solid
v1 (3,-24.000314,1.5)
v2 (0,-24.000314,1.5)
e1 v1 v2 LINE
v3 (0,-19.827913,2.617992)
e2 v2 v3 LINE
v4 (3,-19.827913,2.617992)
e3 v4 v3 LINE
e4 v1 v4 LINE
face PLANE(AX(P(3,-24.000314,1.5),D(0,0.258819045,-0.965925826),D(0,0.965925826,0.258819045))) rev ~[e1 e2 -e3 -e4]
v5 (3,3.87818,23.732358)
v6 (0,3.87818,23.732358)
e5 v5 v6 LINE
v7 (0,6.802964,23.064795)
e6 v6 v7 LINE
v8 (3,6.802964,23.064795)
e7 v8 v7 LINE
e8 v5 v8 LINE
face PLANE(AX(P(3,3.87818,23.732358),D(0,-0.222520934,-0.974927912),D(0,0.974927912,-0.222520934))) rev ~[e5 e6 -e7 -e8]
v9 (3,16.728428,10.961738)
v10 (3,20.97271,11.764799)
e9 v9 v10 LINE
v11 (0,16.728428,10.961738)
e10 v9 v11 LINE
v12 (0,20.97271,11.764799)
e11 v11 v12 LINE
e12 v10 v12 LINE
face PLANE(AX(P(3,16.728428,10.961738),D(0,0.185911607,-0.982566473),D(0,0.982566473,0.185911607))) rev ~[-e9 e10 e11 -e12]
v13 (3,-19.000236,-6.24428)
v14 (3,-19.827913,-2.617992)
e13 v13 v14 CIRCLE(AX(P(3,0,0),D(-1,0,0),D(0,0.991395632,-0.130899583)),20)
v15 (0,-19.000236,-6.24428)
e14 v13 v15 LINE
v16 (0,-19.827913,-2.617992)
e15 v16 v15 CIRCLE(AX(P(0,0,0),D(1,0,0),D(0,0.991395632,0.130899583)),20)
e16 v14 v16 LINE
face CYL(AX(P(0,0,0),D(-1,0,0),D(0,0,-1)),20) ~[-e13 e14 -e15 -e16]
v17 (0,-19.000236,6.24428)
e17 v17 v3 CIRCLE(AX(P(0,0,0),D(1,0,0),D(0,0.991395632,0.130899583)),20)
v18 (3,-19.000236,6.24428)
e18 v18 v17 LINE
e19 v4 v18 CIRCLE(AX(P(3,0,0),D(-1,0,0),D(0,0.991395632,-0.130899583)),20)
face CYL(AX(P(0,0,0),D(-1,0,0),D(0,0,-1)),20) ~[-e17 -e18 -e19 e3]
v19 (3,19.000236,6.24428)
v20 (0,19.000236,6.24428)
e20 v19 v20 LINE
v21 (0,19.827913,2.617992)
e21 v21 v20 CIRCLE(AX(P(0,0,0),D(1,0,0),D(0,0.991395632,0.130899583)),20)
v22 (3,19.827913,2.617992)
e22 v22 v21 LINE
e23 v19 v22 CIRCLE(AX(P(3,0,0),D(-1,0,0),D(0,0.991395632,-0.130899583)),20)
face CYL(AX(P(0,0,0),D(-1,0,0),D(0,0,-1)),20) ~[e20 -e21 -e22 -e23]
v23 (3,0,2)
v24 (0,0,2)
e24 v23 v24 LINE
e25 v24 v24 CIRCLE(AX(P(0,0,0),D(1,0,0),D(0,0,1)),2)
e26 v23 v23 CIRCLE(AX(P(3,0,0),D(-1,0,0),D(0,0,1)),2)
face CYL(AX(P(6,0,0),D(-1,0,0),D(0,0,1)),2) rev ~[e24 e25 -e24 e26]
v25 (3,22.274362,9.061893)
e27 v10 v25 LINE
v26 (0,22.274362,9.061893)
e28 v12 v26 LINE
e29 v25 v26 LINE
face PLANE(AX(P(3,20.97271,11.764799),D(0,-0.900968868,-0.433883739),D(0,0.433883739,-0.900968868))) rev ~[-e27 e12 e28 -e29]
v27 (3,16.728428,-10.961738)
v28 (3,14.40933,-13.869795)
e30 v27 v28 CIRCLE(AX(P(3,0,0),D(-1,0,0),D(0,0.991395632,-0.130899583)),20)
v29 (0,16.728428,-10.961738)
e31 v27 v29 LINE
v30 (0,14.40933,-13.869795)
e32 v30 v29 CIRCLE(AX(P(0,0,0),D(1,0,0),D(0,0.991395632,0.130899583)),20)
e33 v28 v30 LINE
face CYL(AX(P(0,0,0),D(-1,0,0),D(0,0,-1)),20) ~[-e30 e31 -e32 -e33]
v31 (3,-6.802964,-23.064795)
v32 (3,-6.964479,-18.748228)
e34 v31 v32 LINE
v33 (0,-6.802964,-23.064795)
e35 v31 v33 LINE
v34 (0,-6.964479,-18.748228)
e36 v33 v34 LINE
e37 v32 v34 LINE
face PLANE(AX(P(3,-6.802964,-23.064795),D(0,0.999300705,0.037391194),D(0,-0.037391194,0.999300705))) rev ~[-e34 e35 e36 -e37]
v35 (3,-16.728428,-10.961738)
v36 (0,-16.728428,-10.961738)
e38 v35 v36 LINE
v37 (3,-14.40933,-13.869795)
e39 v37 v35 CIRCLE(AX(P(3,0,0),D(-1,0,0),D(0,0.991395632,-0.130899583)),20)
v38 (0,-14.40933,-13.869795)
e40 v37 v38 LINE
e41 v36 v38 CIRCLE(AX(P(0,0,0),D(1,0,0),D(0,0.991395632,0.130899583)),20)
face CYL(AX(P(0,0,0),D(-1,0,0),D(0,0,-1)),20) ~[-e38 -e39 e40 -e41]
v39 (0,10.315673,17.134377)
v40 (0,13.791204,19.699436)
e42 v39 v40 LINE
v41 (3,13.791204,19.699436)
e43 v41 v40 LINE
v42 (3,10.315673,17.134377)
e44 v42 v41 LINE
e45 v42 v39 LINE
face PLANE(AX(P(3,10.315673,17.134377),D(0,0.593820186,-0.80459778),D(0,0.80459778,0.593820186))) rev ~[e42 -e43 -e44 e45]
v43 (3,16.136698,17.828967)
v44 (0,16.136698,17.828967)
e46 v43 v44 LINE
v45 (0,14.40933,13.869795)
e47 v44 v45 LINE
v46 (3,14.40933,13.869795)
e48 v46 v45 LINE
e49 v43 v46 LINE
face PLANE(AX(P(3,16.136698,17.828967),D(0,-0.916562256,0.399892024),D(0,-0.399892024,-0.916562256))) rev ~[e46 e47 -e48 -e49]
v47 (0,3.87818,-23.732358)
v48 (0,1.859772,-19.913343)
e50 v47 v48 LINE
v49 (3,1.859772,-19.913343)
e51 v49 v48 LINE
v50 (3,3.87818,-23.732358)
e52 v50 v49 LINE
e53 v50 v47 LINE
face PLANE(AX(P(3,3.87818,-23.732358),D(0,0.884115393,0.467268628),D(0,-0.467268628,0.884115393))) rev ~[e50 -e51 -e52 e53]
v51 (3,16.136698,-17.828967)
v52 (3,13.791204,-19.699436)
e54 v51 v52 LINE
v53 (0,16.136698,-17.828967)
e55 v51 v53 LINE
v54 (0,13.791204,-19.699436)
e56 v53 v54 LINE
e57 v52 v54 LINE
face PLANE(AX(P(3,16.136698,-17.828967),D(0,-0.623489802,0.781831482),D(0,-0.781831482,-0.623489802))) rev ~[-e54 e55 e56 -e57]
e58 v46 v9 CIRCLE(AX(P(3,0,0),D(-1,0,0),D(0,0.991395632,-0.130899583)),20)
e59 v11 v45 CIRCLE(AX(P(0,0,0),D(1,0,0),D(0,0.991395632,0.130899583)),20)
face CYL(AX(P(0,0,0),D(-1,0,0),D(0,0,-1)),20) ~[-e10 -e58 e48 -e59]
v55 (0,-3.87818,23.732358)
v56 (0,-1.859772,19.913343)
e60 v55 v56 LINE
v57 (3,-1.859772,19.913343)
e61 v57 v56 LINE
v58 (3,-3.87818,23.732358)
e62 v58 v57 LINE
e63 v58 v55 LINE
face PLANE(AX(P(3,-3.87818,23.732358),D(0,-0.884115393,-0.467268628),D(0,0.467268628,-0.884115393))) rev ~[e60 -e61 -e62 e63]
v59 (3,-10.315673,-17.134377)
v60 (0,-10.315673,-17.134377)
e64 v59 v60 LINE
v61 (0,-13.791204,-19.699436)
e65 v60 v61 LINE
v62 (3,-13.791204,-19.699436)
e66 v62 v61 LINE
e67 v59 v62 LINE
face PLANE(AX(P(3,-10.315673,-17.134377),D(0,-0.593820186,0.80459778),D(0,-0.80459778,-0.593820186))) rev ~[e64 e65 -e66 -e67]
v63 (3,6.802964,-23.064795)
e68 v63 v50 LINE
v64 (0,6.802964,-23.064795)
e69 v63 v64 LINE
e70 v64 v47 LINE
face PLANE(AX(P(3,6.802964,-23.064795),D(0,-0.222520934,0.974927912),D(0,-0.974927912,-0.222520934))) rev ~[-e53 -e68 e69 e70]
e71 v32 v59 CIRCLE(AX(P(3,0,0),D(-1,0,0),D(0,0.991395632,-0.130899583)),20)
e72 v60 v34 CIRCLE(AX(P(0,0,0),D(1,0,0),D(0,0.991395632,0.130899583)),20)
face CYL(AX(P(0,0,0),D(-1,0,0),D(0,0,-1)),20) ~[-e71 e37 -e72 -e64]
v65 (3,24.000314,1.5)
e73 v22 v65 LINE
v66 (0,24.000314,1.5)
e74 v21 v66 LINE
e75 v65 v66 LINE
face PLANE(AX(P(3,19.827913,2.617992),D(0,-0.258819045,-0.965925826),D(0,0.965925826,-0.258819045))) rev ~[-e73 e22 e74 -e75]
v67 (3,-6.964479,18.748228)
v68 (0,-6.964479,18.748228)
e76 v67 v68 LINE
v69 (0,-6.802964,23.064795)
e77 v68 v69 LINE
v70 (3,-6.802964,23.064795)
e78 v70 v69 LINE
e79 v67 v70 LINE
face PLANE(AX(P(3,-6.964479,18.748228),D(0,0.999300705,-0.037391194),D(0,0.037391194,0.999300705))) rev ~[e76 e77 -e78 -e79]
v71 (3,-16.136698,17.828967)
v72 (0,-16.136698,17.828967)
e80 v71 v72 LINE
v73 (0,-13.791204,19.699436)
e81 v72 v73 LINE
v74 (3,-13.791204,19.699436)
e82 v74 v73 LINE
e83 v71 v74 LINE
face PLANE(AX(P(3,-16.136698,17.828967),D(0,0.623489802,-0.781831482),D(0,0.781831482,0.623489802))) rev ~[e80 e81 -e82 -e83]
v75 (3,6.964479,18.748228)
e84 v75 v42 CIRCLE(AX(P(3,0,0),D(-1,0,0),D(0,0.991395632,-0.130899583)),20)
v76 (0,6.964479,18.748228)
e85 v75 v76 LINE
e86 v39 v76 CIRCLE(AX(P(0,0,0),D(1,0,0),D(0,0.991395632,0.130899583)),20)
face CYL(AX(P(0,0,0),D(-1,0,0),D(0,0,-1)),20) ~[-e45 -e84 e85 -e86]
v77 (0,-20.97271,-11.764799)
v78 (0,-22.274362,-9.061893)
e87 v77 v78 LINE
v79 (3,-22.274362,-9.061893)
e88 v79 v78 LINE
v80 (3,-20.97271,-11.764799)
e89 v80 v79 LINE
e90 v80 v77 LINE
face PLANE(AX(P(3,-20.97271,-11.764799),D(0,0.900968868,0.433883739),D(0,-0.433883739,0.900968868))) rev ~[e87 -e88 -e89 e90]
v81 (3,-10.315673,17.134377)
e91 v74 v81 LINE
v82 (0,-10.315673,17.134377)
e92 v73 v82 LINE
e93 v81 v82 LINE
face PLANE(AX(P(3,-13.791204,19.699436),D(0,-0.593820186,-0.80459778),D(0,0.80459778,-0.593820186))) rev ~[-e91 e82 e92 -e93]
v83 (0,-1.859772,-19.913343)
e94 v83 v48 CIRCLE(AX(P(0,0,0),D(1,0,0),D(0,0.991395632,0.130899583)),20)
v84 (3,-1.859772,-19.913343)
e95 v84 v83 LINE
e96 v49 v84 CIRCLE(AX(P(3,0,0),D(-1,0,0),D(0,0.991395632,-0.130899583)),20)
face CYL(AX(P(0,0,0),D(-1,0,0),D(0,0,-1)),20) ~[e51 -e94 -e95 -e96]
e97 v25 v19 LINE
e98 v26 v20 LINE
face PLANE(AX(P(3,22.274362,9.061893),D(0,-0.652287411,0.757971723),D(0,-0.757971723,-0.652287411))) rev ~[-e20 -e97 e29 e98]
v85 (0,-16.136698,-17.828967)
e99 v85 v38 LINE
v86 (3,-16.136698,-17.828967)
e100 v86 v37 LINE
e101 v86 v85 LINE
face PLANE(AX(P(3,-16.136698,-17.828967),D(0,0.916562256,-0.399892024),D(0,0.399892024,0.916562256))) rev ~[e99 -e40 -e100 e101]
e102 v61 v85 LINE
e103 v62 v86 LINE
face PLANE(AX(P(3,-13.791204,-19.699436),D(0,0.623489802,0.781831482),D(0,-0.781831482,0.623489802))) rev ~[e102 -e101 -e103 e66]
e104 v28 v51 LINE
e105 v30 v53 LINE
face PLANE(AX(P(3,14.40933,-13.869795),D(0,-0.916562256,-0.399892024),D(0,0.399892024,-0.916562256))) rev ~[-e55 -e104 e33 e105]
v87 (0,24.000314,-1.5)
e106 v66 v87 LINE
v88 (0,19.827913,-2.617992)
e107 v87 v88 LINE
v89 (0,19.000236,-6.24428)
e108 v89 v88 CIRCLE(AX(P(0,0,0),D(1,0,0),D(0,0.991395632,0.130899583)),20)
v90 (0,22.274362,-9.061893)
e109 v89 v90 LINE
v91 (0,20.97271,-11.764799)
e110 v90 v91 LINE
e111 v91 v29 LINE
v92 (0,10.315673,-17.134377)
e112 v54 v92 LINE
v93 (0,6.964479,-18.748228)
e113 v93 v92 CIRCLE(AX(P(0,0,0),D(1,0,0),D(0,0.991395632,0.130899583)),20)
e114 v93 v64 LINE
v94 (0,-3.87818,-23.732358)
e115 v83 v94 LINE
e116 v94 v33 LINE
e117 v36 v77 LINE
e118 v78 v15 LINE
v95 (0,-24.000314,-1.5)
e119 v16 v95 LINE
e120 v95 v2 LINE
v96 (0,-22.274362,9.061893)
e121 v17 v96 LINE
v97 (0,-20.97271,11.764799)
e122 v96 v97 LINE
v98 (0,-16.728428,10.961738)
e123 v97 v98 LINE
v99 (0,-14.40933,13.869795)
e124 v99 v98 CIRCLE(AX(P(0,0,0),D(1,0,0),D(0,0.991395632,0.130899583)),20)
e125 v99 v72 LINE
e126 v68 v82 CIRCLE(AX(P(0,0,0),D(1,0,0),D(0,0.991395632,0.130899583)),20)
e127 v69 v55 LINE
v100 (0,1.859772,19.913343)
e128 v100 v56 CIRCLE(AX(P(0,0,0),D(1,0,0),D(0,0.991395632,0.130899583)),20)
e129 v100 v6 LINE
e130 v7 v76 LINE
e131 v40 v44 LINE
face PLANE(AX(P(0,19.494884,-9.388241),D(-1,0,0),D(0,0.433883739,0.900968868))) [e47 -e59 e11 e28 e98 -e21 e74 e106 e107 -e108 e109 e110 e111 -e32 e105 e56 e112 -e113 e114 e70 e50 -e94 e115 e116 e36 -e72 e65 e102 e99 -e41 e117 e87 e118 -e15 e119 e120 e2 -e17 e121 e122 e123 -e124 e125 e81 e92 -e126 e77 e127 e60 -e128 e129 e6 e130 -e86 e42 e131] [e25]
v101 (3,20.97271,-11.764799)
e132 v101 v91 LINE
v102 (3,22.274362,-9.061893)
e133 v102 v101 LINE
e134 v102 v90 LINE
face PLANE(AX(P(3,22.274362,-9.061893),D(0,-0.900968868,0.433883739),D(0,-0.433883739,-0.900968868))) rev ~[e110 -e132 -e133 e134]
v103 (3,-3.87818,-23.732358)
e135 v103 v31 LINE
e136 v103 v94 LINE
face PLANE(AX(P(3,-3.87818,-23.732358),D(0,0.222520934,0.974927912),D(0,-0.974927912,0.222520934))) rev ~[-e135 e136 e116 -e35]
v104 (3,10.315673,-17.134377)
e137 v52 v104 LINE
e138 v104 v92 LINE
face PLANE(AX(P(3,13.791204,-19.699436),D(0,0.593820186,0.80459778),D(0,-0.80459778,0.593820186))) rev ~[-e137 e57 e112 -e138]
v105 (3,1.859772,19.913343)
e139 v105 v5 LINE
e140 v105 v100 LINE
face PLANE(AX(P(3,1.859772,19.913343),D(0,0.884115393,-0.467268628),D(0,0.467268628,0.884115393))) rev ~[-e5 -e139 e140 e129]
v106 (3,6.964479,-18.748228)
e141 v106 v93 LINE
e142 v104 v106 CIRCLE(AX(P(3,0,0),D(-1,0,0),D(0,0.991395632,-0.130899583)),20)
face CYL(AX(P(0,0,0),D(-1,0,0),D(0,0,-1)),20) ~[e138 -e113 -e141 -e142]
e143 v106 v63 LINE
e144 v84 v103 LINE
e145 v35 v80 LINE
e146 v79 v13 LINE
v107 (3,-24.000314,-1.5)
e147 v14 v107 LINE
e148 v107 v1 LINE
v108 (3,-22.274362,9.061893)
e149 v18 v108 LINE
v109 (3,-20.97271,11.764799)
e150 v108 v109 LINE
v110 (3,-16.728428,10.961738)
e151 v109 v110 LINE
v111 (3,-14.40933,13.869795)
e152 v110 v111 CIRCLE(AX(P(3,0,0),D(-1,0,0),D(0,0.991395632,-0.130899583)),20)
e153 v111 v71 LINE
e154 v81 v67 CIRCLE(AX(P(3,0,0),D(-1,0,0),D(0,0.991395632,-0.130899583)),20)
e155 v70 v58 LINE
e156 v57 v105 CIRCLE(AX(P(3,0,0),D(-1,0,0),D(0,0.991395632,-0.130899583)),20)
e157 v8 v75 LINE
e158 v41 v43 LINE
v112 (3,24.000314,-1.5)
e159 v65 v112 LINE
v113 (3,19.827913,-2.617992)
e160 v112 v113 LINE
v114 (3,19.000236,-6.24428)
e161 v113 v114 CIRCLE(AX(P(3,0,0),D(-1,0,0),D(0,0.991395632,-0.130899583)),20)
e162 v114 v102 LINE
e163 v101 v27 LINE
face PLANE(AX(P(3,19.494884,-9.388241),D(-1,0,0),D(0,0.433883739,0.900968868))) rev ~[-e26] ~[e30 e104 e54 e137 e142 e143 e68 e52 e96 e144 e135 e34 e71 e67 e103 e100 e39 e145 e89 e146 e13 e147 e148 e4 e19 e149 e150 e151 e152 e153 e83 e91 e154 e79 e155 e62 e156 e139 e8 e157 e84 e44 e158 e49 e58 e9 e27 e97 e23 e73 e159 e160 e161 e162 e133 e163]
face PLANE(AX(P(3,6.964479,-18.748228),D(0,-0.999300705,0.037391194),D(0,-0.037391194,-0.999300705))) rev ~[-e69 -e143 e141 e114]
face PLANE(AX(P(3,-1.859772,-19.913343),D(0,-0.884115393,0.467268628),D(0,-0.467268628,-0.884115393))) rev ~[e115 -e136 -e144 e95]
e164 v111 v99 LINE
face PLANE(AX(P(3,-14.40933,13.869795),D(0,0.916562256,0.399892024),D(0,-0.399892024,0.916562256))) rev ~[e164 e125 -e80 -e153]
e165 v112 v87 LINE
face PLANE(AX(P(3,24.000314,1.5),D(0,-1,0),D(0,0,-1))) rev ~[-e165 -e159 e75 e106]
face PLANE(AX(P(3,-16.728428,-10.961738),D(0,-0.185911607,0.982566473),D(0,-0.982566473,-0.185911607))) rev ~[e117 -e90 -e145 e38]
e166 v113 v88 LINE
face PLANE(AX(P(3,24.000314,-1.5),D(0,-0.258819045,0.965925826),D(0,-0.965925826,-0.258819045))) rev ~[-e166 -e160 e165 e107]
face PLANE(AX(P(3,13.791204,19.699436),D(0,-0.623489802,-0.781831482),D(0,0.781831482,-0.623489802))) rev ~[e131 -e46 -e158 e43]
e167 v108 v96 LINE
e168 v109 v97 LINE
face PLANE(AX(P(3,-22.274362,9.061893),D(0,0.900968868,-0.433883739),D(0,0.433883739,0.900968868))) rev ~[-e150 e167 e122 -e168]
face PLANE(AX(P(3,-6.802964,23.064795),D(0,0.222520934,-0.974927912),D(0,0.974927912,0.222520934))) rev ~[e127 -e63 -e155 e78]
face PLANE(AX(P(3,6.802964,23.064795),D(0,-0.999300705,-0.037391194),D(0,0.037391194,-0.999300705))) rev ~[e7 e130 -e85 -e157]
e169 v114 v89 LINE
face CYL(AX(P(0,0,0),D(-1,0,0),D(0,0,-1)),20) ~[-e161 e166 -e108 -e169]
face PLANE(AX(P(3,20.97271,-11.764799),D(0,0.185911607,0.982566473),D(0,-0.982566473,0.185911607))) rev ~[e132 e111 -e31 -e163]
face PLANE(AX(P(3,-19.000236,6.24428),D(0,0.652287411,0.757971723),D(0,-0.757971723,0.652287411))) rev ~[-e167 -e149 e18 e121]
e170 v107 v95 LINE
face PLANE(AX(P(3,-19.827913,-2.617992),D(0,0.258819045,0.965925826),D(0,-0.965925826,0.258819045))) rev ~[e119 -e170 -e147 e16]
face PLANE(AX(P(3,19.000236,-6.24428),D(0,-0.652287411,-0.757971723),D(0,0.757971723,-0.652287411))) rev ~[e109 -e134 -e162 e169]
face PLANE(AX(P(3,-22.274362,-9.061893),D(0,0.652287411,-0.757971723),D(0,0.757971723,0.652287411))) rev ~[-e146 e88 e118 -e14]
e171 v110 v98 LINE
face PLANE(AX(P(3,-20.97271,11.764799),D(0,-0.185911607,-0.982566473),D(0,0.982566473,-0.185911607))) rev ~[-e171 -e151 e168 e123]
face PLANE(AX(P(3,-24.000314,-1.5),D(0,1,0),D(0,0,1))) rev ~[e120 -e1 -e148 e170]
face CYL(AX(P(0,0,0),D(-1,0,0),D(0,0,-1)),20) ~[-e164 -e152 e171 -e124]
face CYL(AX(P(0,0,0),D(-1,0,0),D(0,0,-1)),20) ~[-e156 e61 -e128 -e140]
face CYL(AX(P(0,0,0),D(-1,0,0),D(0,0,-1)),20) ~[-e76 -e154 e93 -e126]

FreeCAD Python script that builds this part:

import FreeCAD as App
import Part
import Sketcher
from FreeCAD import Vector
Q = App.Units.Quantity

doc = App.newDocument("Part")
body = doc.addObject("PartDesign::Body", "Body")

sketch1 = body.newObject("Sketcher::SketchObject", "Sketch")
sketch1.AttachmentSupport = (doc.getObject("YZ_Plane"), [""])
sketch1.MapMode = "FlatFace"
sketch1.addGeometry(Part.Circle(Vector(0, 0, 0), Vector(0, 0, 1), 20), False)
sketch1.addConstraint(Sketcher.Constraint("Coincident", 0, 3, -1, 1))
sketch1.addConstraint(Sketcher.Constraint("Diameter", 0, 40.0))
pad1 = body.newObject("PartDesign::Pad", "Pad")
pad1.Profile = sketch1
pad1.Length = 3

sketch2 = body.newObject("Sketcher::SketchObject", "Sketch001")
sketch2.AttachmentSupport = (doc.getObject("YZ_Plane"), [""])
sketch2.MapMode = "FlatFace"
sketch2.AttachmentOffset = App.Placement(Vector(0, 0, 3), App.Rotation())
sketch2.addGeometry(Part.LineSegment(Vector(19.827913, -2.617992, 0), Vector(24.000314, -1.5, 0)), False)
sketch2.addGeometry(Part.LineSegment(Vector(24.000314, -1.5, 0), Vector(24.000314, 1.5, 0)), False)
sketch2.addGeometry(Part.LineSegment(Vector(24.000314, 1.5, 0), Vector(19.827913, 2.617992, 0)), False)
sketch2.addGeometry(Part.LineSegment(Vector(19.827913, 2.617992, 0), Vector(19.827913, -2.617992, 0)), False)
sketch2.addConstraint(Sketcher.Constraint("Coincident", 0, 2, 1, 1))
sketch2.addConstraint(Sketcher.Constraint("Coincident", 1, 2, 2, 1))
sketch2.addConstraint(Sketcher.Constraint("Coincident", 2, 2, 3, 1))
sketch2.addConstraint(Sketcher.Constraint("Coincident", 3, 2, 0, 1))
sketch2.addConstraint(Sketcher.Constraint("Vertical", 1))
sketch2.addConstraint(Sketcher.Constraint("Vertical", 3))
sketch2.addConstraint(Sketcher.Constraint("Equal", 0, 2))
sketch2.addConstraint(Sketcher.Constraint("DistanceY", 1, 1, 1, 2, 3.0))
sketch2.addConstraint(Sketcher.Constraint("Angle", 0, Q("15 deg")))
sketch2.addConstraint(Sketcher.Constraint("DistanceY", 0, 2, -1, 1, 1.5))
sketch2.addConstraint(Sketcher.Constraint("DistanceX", 2, 2, 1, 2, 4.172402))
sketch2.addConstraint(Sketcher.Constraint("DistanceX", -1, 1, 0, 2, 24.000314))
pad2 = body.newObject("PartDesign::Pad", "Pad001")
pad2.Profile = sketch2
pad2.Length = 3
pad2.Reversed = True
doc.recompute()

polarpattern = body.newObject("PartDesign::PolarPattern", "PolarPattern")
polarpattern.Originals = [pad2]
polarpattern.Axis = (doc.getObject("X_Axis"), [""])
polarpattern.Angle = 360
polarpattern.Occurrences = 14
body.Tip = polarpattern

sketch3 = body.newObject("Sketcher::SketchObject", "Sketch002")
sketch3.AttachmentSupport = (doc.getObject("YZ_Plane"), [""])
sketch3.MapMode = "FlatFace"
sketch3.AttachmentOffset = App.Placement(Vector(0, 0, 3), App.Rotation())
sketch3.addGeometry(Part.Circle(Vector(0, 0, 0), Vector(0, 0, 1), 2), False)
sketch3.addConstraint(Sketcher.Constraint("Coincident", 0, 3, -1, 1))
sketch3.addConstraint(Sketcher.Constraint("Diameter", 0, 4.0))
doc.recompute()
hole = body.newObject("PartDesign::Hole", "Hole")
hole.Profile = sketch3
hole.ThreadType = "None"
hole.Diameter = 4
hole.DepthType = "Dimension"
hole.Depth = 3
hole.DrillPoint = "Angled"
hole.DrillPointAngle = 118

doc.recompute()
